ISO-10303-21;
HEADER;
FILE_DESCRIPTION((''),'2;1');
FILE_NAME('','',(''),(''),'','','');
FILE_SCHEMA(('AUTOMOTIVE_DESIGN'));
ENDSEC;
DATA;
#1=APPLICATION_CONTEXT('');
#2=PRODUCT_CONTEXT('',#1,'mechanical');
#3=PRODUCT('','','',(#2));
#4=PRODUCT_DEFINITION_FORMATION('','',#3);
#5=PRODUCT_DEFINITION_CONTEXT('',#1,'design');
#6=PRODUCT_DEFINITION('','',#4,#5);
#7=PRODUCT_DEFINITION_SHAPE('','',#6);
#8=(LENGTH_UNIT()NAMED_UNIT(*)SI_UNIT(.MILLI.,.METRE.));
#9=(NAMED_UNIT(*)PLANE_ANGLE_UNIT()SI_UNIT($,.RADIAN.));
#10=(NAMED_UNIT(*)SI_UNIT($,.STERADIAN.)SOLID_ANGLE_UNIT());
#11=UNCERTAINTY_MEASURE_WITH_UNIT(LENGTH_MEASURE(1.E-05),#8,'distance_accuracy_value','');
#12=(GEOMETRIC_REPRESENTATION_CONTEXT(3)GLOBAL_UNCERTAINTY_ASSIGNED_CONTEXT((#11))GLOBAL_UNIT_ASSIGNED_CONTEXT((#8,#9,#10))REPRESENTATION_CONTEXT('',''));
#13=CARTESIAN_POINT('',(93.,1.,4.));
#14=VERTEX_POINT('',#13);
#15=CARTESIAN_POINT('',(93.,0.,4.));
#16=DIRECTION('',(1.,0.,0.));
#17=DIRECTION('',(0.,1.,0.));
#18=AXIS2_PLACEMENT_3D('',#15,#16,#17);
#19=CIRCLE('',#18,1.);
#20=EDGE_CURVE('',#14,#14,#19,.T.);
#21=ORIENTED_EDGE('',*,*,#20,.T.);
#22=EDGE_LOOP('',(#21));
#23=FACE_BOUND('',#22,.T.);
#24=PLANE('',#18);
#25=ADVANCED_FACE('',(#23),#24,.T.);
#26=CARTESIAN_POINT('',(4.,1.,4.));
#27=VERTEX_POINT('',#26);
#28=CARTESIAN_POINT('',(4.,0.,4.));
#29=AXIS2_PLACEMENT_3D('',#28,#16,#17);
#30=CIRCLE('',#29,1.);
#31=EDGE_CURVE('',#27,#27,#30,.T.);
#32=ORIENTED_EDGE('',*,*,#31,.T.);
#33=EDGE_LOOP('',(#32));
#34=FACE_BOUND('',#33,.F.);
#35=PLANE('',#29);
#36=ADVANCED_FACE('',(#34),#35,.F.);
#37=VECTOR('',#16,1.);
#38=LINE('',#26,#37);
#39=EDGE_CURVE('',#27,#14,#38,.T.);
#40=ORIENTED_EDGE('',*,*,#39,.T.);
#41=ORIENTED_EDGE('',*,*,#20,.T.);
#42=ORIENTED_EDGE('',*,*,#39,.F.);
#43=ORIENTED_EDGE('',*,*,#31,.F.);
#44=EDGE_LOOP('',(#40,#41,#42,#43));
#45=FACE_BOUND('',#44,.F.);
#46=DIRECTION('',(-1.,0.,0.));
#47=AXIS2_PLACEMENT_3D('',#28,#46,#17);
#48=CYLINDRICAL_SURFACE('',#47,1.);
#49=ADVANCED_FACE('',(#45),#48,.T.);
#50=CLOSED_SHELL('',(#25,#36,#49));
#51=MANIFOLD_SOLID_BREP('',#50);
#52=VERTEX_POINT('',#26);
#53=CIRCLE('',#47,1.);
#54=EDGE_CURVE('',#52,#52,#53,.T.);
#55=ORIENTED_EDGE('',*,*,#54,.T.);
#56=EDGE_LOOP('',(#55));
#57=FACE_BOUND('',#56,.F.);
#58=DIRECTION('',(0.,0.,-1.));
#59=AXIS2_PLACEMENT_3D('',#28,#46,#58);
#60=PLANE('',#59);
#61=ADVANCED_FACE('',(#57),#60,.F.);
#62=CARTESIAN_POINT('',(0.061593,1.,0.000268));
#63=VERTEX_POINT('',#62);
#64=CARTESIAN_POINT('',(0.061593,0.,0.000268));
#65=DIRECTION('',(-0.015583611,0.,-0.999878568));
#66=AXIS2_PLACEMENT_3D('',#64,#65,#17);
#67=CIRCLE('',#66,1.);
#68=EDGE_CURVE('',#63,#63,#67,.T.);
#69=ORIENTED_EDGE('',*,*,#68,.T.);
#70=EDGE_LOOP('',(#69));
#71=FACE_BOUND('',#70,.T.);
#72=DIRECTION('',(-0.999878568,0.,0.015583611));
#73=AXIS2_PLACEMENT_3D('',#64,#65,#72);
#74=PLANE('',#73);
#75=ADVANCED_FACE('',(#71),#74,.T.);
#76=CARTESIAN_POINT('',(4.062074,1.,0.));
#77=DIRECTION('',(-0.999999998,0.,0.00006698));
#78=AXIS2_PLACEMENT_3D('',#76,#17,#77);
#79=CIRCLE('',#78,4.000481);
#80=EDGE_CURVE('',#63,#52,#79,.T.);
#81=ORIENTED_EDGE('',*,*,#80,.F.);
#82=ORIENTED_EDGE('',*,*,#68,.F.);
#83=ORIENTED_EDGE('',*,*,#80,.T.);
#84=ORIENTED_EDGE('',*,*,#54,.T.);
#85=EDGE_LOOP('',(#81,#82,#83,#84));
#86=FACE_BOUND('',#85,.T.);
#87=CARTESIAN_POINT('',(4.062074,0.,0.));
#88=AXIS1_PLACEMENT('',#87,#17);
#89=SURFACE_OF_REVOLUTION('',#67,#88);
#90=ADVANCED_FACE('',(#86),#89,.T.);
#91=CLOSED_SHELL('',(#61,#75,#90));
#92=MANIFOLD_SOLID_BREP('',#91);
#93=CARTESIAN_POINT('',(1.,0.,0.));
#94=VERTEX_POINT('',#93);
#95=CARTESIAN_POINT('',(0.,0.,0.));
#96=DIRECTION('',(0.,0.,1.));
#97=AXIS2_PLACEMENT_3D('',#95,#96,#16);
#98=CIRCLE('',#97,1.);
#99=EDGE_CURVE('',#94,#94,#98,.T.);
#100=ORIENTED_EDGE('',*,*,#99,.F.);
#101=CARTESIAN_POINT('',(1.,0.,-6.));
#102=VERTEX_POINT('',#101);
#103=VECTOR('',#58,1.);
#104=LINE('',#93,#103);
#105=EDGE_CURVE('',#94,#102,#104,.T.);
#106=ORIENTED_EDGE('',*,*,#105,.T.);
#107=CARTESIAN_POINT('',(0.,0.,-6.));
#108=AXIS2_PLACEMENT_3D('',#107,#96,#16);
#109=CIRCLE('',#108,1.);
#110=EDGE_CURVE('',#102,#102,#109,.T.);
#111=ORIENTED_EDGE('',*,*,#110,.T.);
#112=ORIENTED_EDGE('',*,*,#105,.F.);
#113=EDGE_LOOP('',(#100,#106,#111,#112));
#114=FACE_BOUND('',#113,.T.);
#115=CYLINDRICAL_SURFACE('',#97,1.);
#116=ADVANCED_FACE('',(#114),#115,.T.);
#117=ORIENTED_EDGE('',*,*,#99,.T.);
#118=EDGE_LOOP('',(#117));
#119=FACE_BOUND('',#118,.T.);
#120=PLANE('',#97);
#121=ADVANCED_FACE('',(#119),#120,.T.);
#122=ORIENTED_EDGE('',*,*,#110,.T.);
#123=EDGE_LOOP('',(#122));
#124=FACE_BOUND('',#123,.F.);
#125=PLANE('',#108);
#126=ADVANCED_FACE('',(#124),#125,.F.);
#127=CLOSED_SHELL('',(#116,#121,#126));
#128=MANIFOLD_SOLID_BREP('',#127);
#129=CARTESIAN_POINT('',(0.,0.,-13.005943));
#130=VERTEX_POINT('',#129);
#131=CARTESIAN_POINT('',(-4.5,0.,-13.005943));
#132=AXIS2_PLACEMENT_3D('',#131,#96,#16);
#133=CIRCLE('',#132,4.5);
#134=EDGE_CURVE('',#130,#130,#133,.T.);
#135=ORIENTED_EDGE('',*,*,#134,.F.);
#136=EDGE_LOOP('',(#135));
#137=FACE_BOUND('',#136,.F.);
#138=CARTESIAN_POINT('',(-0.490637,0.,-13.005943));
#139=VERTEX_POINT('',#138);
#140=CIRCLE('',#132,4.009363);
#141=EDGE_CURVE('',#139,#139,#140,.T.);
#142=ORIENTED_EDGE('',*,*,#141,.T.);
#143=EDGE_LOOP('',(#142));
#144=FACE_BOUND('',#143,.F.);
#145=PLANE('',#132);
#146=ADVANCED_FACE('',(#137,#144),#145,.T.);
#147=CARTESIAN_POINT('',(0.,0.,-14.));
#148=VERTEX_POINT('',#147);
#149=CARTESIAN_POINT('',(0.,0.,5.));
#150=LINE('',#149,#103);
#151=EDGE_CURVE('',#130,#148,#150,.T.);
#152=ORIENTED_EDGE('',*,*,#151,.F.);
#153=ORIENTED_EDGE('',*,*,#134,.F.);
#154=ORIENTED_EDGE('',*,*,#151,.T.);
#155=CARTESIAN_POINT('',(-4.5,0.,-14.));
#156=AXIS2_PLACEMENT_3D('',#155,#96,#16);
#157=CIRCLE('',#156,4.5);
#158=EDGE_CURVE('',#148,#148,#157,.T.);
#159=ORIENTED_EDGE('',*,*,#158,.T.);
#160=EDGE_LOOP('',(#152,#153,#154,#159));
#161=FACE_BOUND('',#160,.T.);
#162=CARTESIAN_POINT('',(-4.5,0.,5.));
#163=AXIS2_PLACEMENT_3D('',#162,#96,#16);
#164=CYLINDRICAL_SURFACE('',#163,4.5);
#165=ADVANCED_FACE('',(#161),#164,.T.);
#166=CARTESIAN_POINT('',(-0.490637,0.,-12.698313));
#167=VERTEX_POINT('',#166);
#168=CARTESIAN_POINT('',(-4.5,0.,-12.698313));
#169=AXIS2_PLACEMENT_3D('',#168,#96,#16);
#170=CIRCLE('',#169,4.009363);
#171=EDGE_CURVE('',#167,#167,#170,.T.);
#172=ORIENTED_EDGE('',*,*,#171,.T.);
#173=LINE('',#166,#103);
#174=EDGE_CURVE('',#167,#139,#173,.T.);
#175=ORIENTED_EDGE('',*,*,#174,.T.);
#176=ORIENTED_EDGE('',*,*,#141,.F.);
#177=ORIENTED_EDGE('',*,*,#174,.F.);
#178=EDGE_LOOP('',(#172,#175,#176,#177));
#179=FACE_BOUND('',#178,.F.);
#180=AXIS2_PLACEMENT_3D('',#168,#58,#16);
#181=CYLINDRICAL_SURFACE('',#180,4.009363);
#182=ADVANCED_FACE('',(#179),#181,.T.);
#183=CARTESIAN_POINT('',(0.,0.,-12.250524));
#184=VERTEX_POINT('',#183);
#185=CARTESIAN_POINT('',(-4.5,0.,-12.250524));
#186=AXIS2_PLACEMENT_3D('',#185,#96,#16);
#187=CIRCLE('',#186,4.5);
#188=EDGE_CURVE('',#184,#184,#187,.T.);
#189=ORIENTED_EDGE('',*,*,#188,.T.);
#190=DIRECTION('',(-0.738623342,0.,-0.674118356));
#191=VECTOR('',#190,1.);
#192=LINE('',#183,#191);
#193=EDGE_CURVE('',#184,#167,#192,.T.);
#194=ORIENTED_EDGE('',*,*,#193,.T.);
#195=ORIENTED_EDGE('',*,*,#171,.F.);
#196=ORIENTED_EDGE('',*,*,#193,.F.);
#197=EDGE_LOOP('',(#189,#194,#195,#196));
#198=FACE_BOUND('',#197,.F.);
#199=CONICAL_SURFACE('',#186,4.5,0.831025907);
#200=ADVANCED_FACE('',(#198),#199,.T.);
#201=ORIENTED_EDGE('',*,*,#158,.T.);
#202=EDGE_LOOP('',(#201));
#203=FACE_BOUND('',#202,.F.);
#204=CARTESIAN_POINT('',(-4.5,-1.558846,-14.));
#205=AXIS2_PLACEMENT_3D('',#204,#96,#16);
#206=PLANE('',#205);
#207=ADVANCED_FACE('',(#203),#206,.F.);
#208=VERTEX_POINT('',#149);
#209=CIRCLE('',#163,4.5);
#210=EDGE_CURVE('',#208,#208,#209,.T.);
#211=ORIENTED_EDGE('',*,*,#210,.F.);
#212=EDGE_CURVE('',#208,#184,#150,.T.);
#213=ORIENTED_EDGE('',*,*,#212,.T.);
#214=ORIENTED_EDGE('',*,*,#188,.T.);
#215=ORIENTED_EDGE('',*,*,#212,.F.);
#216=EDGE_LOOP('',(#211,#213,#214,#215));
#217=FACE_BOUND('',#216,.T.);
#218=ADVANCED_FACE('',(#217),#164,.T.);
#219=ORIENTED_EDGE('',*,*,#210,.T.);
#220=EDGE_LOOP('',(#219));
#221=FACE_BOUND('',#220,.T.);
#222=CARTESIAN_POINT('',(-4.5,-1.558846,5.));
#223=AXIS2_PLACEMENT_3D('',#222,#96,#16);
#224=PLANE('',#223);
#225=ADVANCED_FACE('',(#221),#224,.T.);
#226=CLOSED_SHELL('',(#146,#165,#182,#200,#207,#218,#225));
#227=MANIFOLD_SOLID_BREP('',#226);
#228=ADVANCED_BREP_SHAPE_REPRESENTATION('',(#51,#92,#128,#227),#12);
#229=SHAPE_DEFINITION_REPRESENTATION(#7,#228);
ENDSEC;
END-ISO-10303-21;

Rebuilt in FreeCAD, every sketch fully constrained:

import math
import FreeCAD as App
import Part
import Sketcher
from FreeCAD import Vector
Q = App.Units.Quantity


def add_polygon(sketch, points):
    """Adds a closed chain of lines whose ends are joined by coincident constraints."""
    first, n = sketch.GeometryCount, len(points)
    for a, b in zip(points, points[1:] + points[:1]):
        sketch.addGeometry(Part.LineSegment(App.Vector(*a, 0), App.Vector(*b, 0)), False)
    for i in range(n):
        sketch.addConstraint(Sketcher.Constraint("Coincident", first + i, 2, first + (i + 1) % n, 1))

doc = App.newDocument("Part")
body = doc.addObject("PartDesign::Body", "Body")

# Sketch on XY plane
sketch1 = body.newObject("Sketcher::SketchObject", "Sketch")
sketch1.AttachmentSupport = (doc.getObject("XY_Plane"), [""])
sketch1.MapMode = "FlatFace"
sketch1.addGeometry(Part.Circle(Vector(0, 0, 0), Vector(0, 0, 1), 1), False)
sketch1.addConstraint([
    Sketcher.Constraint("Coincident", 0, 3, -1, 1),
    Sketcher.Constraint("Diameter", 0, Q("2 mm")),
])
pad1 = body.newObject("PartDesign::Pad", "Pad")
pad1.Profile = sketch1
pad1.Length = 6
pad1.Reversed = True
body2 = doc.addObject("PartDesign::Body", "Body001")

# Sketch on YZ plane
sketch2 = body2.newObject("Sketcher::SketchObject", "Sketch001")
sketch2.AttachmentSupport = (doc.getObject("YZ_Plane001"), [""])
sketch2.MapMode = "FlatFace"
sketch2.AttachmentOffset = App.Placement(Vector(0, 0, 4), App.Rotation())
sketch2.addGeometry(Part.Circle(Vector(0, 4, 0), Vector(0, 0, 1), 1), False)
sketch2.addConstraint([
    Sketcher.Constraint("PointOnObject", 0, 3, -2),
    Sketcher.Constraint("Diameter", 0, Q("2 mm")),
    Sketcher.Constraint("DistanceY", -1, 1, 0, 3, Q("4 mm")),
])
pad2 = body2.newObject("PartDesign::Pad", "Pad001")
pad2.Profile = sketch2
pad2.Length = 89
body3 = doc.addObject("PartDesign::Body", "Body002")

# Sketch on YZ plane
sketch3 = body3.newObject("Sketcher::SketchObject", "Sketch002")
sketch3.AttachmentSupport = (doc.getObject("YZ_Plane002"), [""])
sketch3.MapMode = "FlatFace"
sketch3.AttachmentOffset = App.Placement(Vector(0, 0, 4), App.Rotation())
sketch3.addGeometry(Part.Circle(Vector(0, 4, 0), Vector(0, 0, 1), 1), False)
sketch3.addConstraint([
    Sketcher.Constraint("PointOnObject", 0, 3, -2),
    Sketcher.Constraint("Diameter", 0, Q("2 mm")),
    Sketcher.Constraint("DistanceY", -1, 1, 0, 3, Q("4 mm")),
])

# Sketch on XZ plane
sketch4 = body3.newObject("Sketcher::SketchObject", "Sketch003")
sketch4.AttachmentSupport = (doc.getObject("XZ_Plane002"), [""])
sketch4.MapMode = "FlatFace"
sketch4.addGeometry(Part.ArcOfCircle(Part.Circle(Vector(4.1, 0, 0), Vector(0, 0, 1), 4.1), math.radians(91), math.radians(180)), False)
sketch4.addConstraint([
    Sketcher.Constraint("Coincident", 0, 2, -1, 1),
    Sketcher.Constraint("PointOnObject", 0, 3, -1),
    Sketcher.Constraint("Radius", 0, Q("4.062074 mm")),
    Sketcher.Constraint("DistanceX", -1, 1, 0, 1, Q("3.998772 mm")),
])
doc.recompute()

additivepipe = body3.newObject("PartDesign::AdditivePipe", "AdditivePipe")
additivepipe.Profile = sketch3
additivepipe.Spine = (sketch4, ["Edge1"])
body4 = doc.addObject("PartDesign::Body", "Body003")

# Sketch on XY plane
sketch5 = body4.newObject("Sketcher::SketchObject", "Sketch004")
sketch5.AttachmentSupport = (doc.getObject("XY_Plane003"), [""])
sketch5.MapMode = "FlatFace"
sketch5.AttachmentOffset = App.Placement(Vector(0, 0, 5), App.Rotation())
sketch5.addGeometry(Part.Circle(Vector(-4.5, 0, 0), Vector(0, 0, 1), 4.5), False)
sketch5.addConstraint([
    Sketcher.Constraint("PointOnObject", 0, 3, -1),
    Sketcher.Constraint("Diameter", 0, Q("9 mm")),
    Sketcher.Constraint("DistanceX", 0, 3, -1, 1, Q("4.5 mm")),
])
pad3 = body4.newObject("PartDesign::Pad", "Pad002")
pad3.Profile = sketch5
pad3.Length = 19
pad3.Reversed = True

# Sketch on XZ plane
sketch6 = body4.newObject("Sketcher::SketchObject", "Sketch005")
sketch6.AttachmentSupport = (doc.getObject("XZ_Plane003"), [""])
sketch6.MapMode = "FlatFace"
add_polygon(sketch6, [(0, -13.01), (0, -14.01), (1.13, -13.99), (1.13, -12.53), (0, -12.25), (-0.49, -12.7), (-0.49, -13.01)])  # lines 0-6
sketch6.addGeometry(Part.LineSegment(Vector(-4.5, -14.01, 0), Vector(-4.5, -12.25, 0)), True)  # axis
sketch6.addConstraint([
    Sketcher.Constraint("Vertical", 0),
    Sketcher.Constraint("Vertical", 2),
    Sketcher.Constraint("Vertical", 5),
    Sketcher.Constraint("Horizontal", 6),
    Sketcher.Constraint("Vertical", 7),
    Sketcher.Constraint("PointOnObject", 0, 2, -2),
    Sketcher.Constraint("PointOnObject", 3, 2, -2),
    Sketcher.Constraint("Horizontal", 0, 2, 7, 1),
    Sketcher.Constraint("Horizontal", 3, 2, 7, 2),
    Sketcher.Constraint("DistanceX", 7, 1, -1, 1, Q("4.5 mm")),
    Sketcher.Constraint("DistanceY", 2, 1, 2, 2, Q("1.463282 mm")),
    Sketcher.Constraint("DistanceY", 5, 2, 5, 1, Q("0.30763 mm")),
    Sketcher.Constraint("DistanceY", 7, 1, 7, 2, Q("1.763731 mm")),
    Sketcher.Constraint("DistanceX", -1, 1, 1, 2, Q("1.1325 mm")),
    Sketcher.Constraint("Distance", 4, Q("0.664259 mm")),
    Sketcher.Constraint("DistanceX", 6, 1, 6, 2, Q("0.490637 mm")),
    Sketcher.Constraint("DistanceY", 1, 2, -1, 1, Q("13.989662 mm")),
    Sketcher.Constraint("DistanceY", 1, 2, 4, 2, Q("1.291349 mm")),
])
groove = body4.newObject("PartDesign::Groove", "Groove")
groove.Profile = sketch6
groove.ReferenceAxis = (sketch6, ["Axis0"])
groove.Angle = 360

doc.recompute()
